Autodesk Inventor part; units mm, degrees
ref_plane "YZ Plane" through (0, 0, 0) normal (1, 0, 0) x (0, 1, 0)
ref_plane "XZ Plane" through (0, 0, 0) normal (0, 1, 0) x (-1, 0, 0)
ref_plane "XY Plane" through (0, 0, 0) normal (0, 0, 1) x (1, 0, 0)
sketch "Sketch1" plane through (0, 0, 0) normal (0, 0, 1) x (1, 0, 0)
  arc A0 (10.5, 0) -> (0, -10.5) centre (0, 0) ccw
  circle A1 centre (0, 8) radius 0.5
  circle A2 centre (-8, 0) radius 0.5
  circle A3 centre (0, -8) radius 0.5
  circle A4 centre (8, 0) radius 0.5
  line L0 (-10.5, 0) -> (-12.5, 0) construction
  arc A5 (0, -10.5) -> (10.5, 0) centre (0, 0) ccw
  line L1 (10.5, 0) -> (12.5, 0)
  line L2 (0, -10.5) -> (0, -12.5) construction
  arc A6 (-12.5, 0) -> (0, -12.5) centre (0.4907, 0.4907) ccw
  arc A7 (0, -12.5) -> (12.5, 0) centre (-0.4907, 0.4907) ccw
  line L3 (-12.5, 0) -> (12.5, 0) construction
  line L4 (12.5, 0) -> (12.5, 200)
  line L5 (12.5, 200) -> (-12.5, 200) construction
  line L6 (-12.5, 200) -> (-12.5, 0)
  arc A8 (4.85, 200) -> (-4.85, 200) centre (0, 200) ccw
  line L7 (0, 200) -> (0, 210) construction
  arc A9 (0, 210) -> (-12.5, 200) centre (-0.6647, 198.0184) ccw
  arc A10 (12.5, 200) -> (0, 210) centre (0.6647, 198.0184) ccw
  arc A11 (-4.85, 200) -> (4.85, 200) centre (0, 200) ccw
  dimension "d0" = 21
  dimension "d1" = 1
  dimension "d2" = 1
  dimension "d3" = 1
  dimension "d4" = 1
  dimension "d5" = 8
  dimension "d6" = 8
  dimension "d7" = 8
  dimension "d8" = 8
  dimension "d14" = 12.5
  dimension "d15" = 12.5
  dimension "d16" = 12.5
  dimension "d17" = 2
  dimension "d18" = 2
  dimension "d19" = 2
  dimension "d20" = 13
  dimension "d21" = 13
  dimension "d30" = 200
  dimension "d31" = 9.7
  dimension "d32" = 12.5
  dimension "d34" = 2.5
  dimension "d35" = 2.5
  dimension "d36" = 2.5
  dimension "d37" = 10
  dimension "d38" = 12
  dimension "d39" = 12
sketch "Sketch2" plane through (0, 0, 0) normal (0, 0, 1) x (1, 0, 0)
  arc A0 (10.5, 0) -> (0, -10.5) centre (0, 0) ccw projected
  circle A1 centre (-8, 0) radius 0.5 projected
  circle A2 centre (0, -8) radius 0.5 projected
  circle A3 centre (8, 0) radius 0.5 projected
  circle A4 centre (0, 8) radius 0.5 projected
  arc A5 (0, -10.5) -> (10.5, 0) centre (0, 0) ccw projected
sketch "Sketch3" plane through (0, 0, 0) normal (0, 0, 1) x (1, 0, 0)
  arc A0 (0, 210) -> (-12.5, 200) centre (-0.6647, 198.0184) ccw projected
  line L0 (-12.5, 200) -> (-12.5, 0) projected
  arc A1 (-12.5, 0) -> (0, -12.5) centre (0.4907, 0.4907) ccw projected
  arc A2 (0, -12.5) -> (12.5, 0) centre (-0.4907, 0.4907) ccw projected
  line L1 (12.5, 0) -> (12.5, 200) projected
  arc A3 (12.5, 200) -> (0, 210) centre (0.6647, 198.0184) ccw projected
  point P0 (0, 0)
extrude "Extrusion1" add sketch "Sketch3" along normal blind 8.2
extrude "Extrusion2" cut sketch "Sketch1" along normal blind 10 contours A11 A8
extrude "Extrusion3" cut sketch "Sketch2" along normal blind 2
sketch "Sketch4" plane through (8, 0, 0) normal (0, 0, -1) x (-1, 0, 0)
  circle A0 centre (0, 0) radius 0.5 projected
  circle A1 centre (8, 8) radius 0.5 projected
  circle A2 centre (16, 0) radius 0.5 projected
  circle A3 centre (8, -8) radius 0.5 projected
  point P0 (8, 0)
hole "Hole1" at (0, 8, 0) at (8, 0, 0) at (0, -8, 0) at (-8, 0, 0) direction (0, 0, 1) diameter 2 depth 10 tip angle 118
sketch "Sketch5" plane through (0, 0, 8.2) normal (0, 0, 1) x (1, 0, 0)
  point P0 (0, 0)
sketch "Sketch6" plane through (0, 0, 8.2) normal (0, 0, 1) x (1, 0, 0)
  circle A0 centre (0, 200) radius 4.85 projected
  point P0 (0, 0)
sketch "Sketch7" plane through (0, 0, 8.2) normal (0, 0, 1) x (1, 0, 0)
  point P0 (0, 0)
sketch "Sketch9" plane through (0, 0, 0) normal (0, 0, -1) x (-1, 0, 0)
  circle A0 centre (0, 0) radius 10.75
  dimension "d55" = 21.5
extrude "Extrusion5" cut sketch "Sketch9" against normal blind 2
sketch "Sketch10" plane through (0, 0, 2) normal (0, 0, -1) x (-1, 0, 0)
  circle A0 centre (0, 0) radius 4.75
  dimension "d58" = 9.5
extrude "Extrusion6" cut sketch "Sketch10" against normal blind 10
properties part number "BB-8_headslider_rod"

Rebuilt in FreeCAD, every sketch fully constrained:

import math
import FreeCAD as App
import Part
import Sketcher

V = App.Vector
Q = App.Units.Quantity

doc = App.newDocument("Part")
body = doc.addObject("PartDesign::Body", "Body")

# Sketch on XY plane
sketch1 = body.newObject("Sketcher::SketchObject", "Sketch")
sketch1.AttachmentSupport = (doc.getObject("XY_Plane"), [""])
sketch1.MapMode = "FlatFace"
sketch1.addGeometry([
    Part.ArcOfCircle(Part.Circle(V(0.6647, 198.0184, 0), V(0, 0, 1), 12.000044), math.radians(9.504945), math.radians(93.175328)),  # 0
    Part.ArcOfCircle(Part.Circle(V(-0.6647, 198.0184, 0), V(0, 0, 1), 12.000024), math.radians(86.824672), math.radians(170.495055)),  # 1
    Part.LineSegment(V(-12.5, 200, 0), V(-12.5, 0, 0)),  # 2
    Part.ArcOfCircle(Part.Circle(V(0.4907, 0.4907, 0), V(0, 0, 1), 12.999964), math.radians(-177.836785), math.radians(-92.163215)),  # 3
    Part.ArcOfCircle(Part.Circle(V(-0.4907, 0.4907, 0), V(0, 0, 1), 12.999964), math.radians(-87.836785), math.radians(-2.163215)),  # 4
    Part.LineSegment(V(12.5, 0, 0), V(12.5, 200, 0)),  # 5
], False)
sketch1.addConstraint([
    Sketcher.Constraint("Coincident", 0, 2, 1, 1),
    Sketcher.Constraint("Coincident", 1, 2, 2, 1),
    Sketcher.Constraint("Coincident", 2, 2, 3, 1),
    Sketcher.Constraint("Coincident", 3, 2, 4, 1),
    Sketcher.Constraint("Coincident", 4, 2, 5, 1),
    Sketcher.Constraint("Coincident", 5, 2, 0, 1),
    Sketcher.Constraint("Vertical", 2),
    Sketcher.Constraint("Vertical", 5),
    Sketcher.Constraint("Equal", 0, 1),
    Sketcher.Constraint("Equal", 3, 4),
    Sketcher.Constraint("Symmetric", 2, 2, 4, 2, -1, 1),
    Sketcher.Constraint("Symmetric", 0, 3, 1, 3, -2),
    Sketcher.Constraint("Symmetric", 3, 3, 4, 3, -2),
    Sketcher.Constraint("Radius", 0, Q("12 mm")),
    Sketcher.Constraint("Radius", 3, Q("13 mm")),
    Sketcher.Constraint("DistanceY", 2, 2, 2, 1, Q("200 mm")),
    Sketcher.Constraint("DistanceY", -1, 1, 0, 2, Q("210 mm")),
    Sketcher.Constraint("DistanceX", 2, 2, 4, 2, Q("25 mm")),
    Sketcher.Constraint("DistanceY", 3, 2, -1, 1, Q("12.5 mm")),
])
pad1 = body.newObject("PartDesign::Pad", "Pad")
pad1.Profile = sketch1
pad1.Length = 8.2

# Sketch on XY plane
sketch2 = body.newObject("Sketcher::SketchObject", "Sketch001")
sketch2.AttachmentSupport = (doc.getObject("XY_Plane"), [""])
sketch2.MapMode = "FlatFace"
sketch2.addGeometry(Part.Circle(V(0, 200, 0), V(0, 0, 1), 4.8), False)
sketch2.addConstraint([
    Sketcher.Constraint("PointOnObject", 0, 3, -2),
    Sketcher.Constraint("Diameter", 0, Q("9.7 mm")),
    Sketcher.Constraint("DistanceY", -1, 1, 0, 3, Q("200 mm")),
])
pocket1 = body.newObject("PartDesign::Pocket", "Pocket")
pocket1.Profile = sketch2
pocket1.Length = 10
pocket1.Reversed = True

# Sketch on XY plane
sketch3 = body.newObject("Sketcher::SketchObject", "Sketch002")
sketch3.AttachmentSupport = (doc.getObject("XY_Plane"), [""])
sketch3.MapMode = "FlatFace"
sketch3.addGeometry([
    Part.Circle(V(0, 0, 0), V(0, 0, 1), 10.5),  # 0
    Part.Circle(V(0, -8, 0), V(0, 0, 1), 0.5),  # 1
    Part.Circle(V(-8, 0, 0), V(0, 0, 1), 0.5),  # 2
    Part.Circle(V(8, 0, 0), V(0, 0, 1), 0.5),  # 3
    Part.Circle(V(0, 8, 0), V(0, 0, 1), 0.5),  # 4
], False)
sketch3.addConstraint([
    Sketcher.Constraint("Coincident", 0, 3, -1, 1),
    Sketcher.Constraint("Equal", 1, 2),
    Sketcher.Constraint("Equal", 2, 3),
    Sketcher.Constraint("Equal", 3, 4),
    Sketcher.Constraint("Symmetric", 2, 3, 3, 3, -1, 1),
    Sketcher.Constraint("Symmetric", 1, 3, 4, 3, -1, 1),
    Sketcher.Constraint("PointOnObject", 1, 3, -2),
    Sketcher.Constraint("PointOnObject", 2, 3, -1),
    Sketcher.Constraint("Diameter", 0, Q("21 mm")),
    Sketcher.Constraint("Diameter", 1, Q("1 mm")),
    Sketcher.Constraint("DistanceY", 1, 3, -1, 1, Q("8 mm")),
    Sketcher.Constraint("DistanceX", 2, 3, -1, 1, Q("8 mm")),
])
pocket2 = body.newObject("PartDesign::Pocket", "Pocket001")
pocket2.Profile = sketch3
pocket2.Length = 2
pocket2.Reversed = True

# Sketch on XY plane
sketch4 = body.newObject("Sketcher::SketchObject", "Sketch003")
sketch4.AttachmentSupport = (doc.getObject("XY_Plane"), [""])
sketch4.MapMode = "FlatFace"
sketch4.addGeometry([
    Part.Circle(V(0, 8, 0), V(0, 0, 1), 1),
    Part.Circle(V(8, 0, 0), V(0, 0, 1), 1),
    Part.Circle(V(0, -8, 0), V(0, 0, 1), 1),
    Part.Circle(V(-8, 0, 0), V(0, 0, 1), 1),
], False)
sketch4.addConstraint([
    Sketcher.Constraint("Equal", 0, 1),
    Sketcher.Constraint("Equal", 1, 2),
    Sketcher.Constraint("Equal", 2, 3),
    Sketcher.Constraint("Symmetric", 0, 3, 2, 3, -1, 1),
    Sketcher.Constraint("Symmetric", 1, 3, 3, 3, -1, 1),
    Sketcher.Constraint("PointOnObject", 0, 3, -2),
    Sketcher.Constraint("PointOnObject", 1, 3, -1),
    Sketcher.Constraint("Diameter", 0, Q("2 mm")),
    Sketcher.Constraint("DistanceY", -1, 1, 0, 3, Q("8 mm")),
    Sketcher.Constraint("DistanceX", -1, 1, 1, 3, Q("8 mm")),
])
doc.recompute()
hole = body.newObject("PartDesign::Hole", "Hole")
hole.Profile = sketch4
hole.ThreadType = "None"
hole.Diameter = 2
hole.DepthType = "Dimension"
hole.Depth = 10
hole.DrillPoint = "Angled"
hole.DrillPointAngle = 118
hole.Reversed = True

# Sketch on XY plane
sketch5 = body.newObject("Sketcher::SketchObject", "Sketch004")
sketch5.AttachmentSupport = (doc.getObject("XY_Plane"), [""])
sketch5.MapMode = "FlatFace"
sketch5.addGeometry(Part.Circle(V(0, 0, 0), V(0, 0, 1), 11), False)
sketch5.addConstraint([
    Sketcher.Constraint("Coincident", 0, 3, -1, 1),
    Sketcher.Constraint("Diameter", 0, Q("21.5 mm")),
])
pocket3 = body.newObject("PartDesign::Pocket", "Pocket002")
pocket3.Profile = sketch5
pocket3.Length = 2
pocket3.Reversed = True

# Sketch on XY plane
sketch6 = body.newObject("Sketcher::SketchObject", "Sketch005")
sketch6.AttachmentSupport = (doc.getObject("XY_Plane"), [""])
sketch6.MapMode = "FlatFace"
sketch6.AttachmentOffset = App.Placement(V(0, 0, 2), App.Rotation())
sketch6.addGeometry(Part.Circle(V(0, 0, 0), V(0, 0, 1), 4.8), False)
sketch6.addConstraint([
    Sketcher.Constraint("Coincident", 0, 3, -1, 1),
    Sketcher.Constraint("Diameter", 0, Q("9.5 mm")),
])
pocket4 = body.newObject("PartDesign::Pocket", "Pocket003")
pocket4.Profile = sketch6
pocket4.Length = 10
pocket4.Reversed = True

doc.recompute()
